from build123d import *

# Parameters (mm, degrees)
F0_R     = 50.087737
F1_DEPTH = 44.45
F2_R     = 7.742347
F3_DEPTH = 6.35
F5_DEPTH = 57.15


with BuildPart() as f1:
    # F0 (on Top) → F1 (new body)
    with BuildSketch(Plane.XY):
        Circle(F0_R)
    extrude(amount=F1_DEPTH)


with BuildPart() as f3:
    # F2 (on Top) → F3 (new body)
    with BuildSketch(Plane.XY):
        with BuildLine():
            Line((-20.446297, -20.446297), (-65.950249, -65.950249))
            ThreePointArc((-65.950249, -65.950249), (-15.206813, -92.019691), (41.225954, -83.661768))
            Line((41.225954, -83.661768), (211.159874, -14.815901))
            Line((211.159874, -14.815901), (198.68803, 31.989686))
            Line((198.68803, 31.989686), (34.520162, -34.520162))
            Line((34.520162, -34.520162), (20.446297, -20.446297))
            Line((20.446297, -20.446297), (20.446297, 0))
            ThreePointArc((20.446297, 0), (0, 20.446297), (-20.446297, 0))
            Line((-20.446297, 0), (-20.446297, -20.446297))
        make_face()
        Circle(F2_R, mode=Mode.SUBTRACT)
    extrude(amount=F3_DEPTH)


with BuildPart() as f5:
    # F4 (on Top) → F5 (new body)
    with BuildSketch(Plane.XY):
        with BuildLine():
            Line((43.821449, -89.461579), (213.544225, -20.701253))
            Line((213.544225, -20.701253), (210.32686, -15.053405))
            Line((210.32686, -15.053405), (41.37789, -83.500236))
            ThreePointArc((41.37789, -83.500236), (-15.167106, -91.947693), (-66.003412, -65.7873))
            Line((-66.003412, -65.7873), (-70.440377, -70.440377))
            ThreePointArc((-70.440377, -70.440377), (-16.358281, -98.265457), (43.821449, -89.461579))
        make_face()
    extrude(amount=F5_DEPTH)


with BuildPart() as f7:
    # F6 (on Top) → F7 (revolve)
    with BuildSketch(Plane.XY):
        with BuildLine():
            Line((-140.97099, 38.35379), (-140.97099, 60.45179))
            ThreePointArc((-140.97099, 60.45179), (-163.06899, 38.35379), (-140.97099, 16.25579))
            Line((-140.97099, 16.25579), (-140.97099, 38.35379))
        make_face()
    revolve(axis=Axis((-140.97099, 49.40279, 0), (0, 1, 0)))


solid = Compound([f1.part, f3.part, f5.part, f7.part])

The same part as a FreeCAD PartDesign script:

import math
import FreeCAD as App
import Part
import Sketcher
from FreeCAD import Vector
Q = App.Units.Quantity

doc = App.newDocument("Part")
body = doc.addObject("PartDesign::Body", "Body")

# Sketch on XY plane
sketch1 = doc.addObject("Sketcher::SketchObject", "Sketch")
body.addObject(sketch1)
sketch1.AttachmentSupport = (doc.XY_Plane, [""])
sketch1.MapMode = "FlatFace"
sketch1.addGeometry(Part.Circle(Vector(0, 0, 0), Vector(0, 0, 1), 50), False)
sketch1.addConstraint([
    Sketcher.Constraint("Coincident", 0, 3, -1, 1),
    Sketcher.Constraint("Diameter", 0, 100.175474),
])
pad1 = doc.addObject("PartDesign::Pad", "Pad")
body.addObject(pad1)
pad1.Profile = sketch1
pad1.Length = Q("1.75 in")
body2 = doc.addObject("PartDesign::Body", "Body001")

# Sketch on XY plane
sketch2 = doc.addObject("Sketcher::SketchObject", "Sketch001")
body2.addObject(sketch2)
sketch2.AttachmentSupport = (doc.getObject("XY_Plane001"), [""])
sketch2.MapMode = "FlatFace"
sketch2.addGeometry([
    Part.LineSegment(Vector(-20, -20, 0), Vector(-66, -66, 0)),  # 0
    Part.ArcOfCircle(Part.Circle(Vector(0, 0, 0), Vector(0, 0, 1), 93), math.radians(-135), math.radians(-64)),  # 1
    Part.LineSegment(Vector(41, -84, 0), Vector(211, -15, 0)),  # 2
    Part.LineSegment(Vector(211, -15, 0), Vector(199, 32, 0)),  # 3
    Part.LineSegment(Vector(199, 32, 0), Vector(35, -35, 0)),  # 4
    Part.LineSegment(Vector(35, -35, 0), Vector(20, -20, 0)),  # 5
    Part.LineSegment(Vector(20, -20, 0), Vector(20, 0, 0)),  # 6
    Part.ArcOfCircle(Part.Circle(Vector(0, 0, 0), Vector(0, 0, 1), 20), math.radians(0), math.radians(180)),  # 7
    Part.LineSegment(Vector(-20, 0, 0), Vector(-20, -20, 0)),  # 8
    Part.Circle(Vector(0, 0, 0), Vector(0, 0, 1), 8),  # 9
], False)
sketch2.addConstraint([
    Sketcher.Constraint("Coincident", 0, 2, 1, 1),
    Sketcher.Constraint("Coincident", 1, 2, 2, 1),
    Sketcher.Constraint("Coincident", 2, 2, 3, 1),
    Sketcher.Constraint("Coincident", 3, 2, 4, 1),
    Sketcher.Constraint("Coincident", 4, 2, 5, 1),
    Sketcher.Constraint("Coincident", 5, 2, 6, 1),
    Sketcher.Constraint("Tangent", 6, 2, 7, 1),
    Sketcher.Constraint("Tangent", 7, 2, 8, 1),
    Sketcher.Constraint("Coincident", 8, 2, 0, 1),
    Sketcher.Constraint("Vertical", 6),
    Sketcher.Constraint("Vertical", 8),
    Sketcher.Constraint("Coincident", 1, 3, -1, 1),
    Sketcher.Constraint("Coincident", 7, 3, -1, 1),
    Sketcher.Constraint("Coincident", 9, 3, -1, 1),
    Sketcher.Constraint("Parallel", 2, 4),
    Sketcher.Constraint("Perpendicular", 0, 5),
    Sketcher.Constraint("Horizontal", 5, 2, 8, 2),
    Sketcher.Constraint("Angle", 0, Q("-135 deg")),
    Sketcher.Constraint("Diameter", 9, 15.484694),
    Sketcher.Constraint("Radius", 1, 93.267737),
    Sketcher.Constraint("Radius", 7, 20.446297),
    Sketcher.Constraint("DistanceY", 2, 2, -1, 1, 14.815901),
    Sketcher.Constraint("Distance", 5, 19.903451),
    Sketcher.Constraint("DistanceY", 6, 1, 6, 2, 20.446297),
    Sketcher.Constraint("DistanceX", -1, 1, 3, 2, 198.68803),
    Sketcher.Constraint("DistanceY", 1, 2, 1, 3, 83.661768),
    Sketcher.Constraint("DistanceX", 1, 2, 2, 2, 169.93392),
])
pad2 = doc.addObject("PartDesign::Pad", "Pad001")
body2.addObject(pad2)
pad2.Profile = sketch2
pad2.Length = Q("0.25 in")
body3 = doc.addObject("PartDesign::Body", "Body002")

# Sketch on XY plane
sketch3 = doc.addObject("Sketcher::SketchObject", "Sketch002")
body3.addObject(sketch3)
sketch3.AttachmentSupport = (doc.getObject("XY_Plane002"), [""])
sketch3.MapMode = "FlatFace"
sketch3.addGeometry([
    Part.LineSegment(Vector(43.821449, -89.461579, 0), Vector(213.544225, -20.701253, 0)),  # 0
    Part.LineSegment(Vector(213.544225, -20.701253, 0), Vector(210.32686, -15.053405, 0)),  # 1
    Part.LineSegment(Vector(210.32686, -15.053405, 0), Vector(41.37789, -83.500236, 0)),  # 2
    Part.ArcOfCircle(Part.Circle(Vector(-0.000001, -0.000004, 0), Vector(0, 0, 1), 93.190228), math.radians(-135.093956), math.radians(-63.639642)),  # 3
    Part.LineSegment(Vector(-66.003412, -65.7873, 0), Vector(-70.440377, -70.440377, 0)),  # 4
    Part.ArcOfCircle(Part.Circle(Vector(0.000001, 0.000002, 0), Vector(0, 0, 1), 99.617738), math.radians(-135), math.radians(-63.902752)),  # 5
], False)
sketch3.addConstraint([
    Sketcher.Constraint("Coincident", 0, 2, 1, 1),
    Sketcher.Constraint("Coincident", 1, 2, 2, 1),
    Sketcher.Constraint("Coincident", 2, 2, 3, 2),
    Sketcher.Constraint("Coincident", 3, 1, 4, 1),
    Sketcher.Constraint("Coincident", 4, 2, 5, 1),
    Sketcher.Constraint("Coincident", 5, 2, 0, 1),
    Sketcher.Constraint("Coincident", 3, 3, -1, 1),
    Sketcher.Constraint("Coincident", 5, 3, -1, 1),
    Sketcher.Constraint("Radius", 3, 93.190228),
    Sketcher.Constraint("Radius", 5, 99.617738),
    Sketcher.Constraint("DistanceY", 3, 1, -1, 1, 65.7873),
    Sketcher.Constraint("DistanceY", 1, 2, 3, 3, 15.053401),
    Sketcher.Constraint("DistanceX", 3, 1, 2, 2, 107.381302),
    Sketcher.Constraint("Distance", 0, 183.122372),
    Sketcher.Constraint("Distance", 1, 6.499971),
    Sketcher.Constraint("DistanceX", -1, 1, 1, 2, 210.32686),
    Sketcher.Constraint("DistanceX", -1, 1, 5, 2, 43.821449),
    Sketcher.Constraint("DistanceY", 4, 2, 5, 3, 70.440379),
])
pad3 = doc.addObject("PartDesign::Pad", "Pad002")
body3.addObject(pad3)
pad3.Profile = sketch3
pad3.Length = Q("2.25 in")
body4 = doc.addObject("PartDesign::Body", "Body003")

# Sketch on XY plane
sketch4 = doc.addObject("Sketcher::SketchObject", "Sketch003")
body4.addObject(sketch4)
sketch4.AttachmentSupport = (doc.getObject("XY_Plane003"), [""])
sketch4.MapMode = "FlatFace"
sketch4.addGeometry([
    Part.ArcOfCircle(Part.Circle(Vector(-141, 38, 0), Vector(0, 0, 1), 22), math.radians(90), math.radians(270)),
    Part.LineSegment(Vector(-141, 16, 0), Vector(-141, 60, 0)),
], False)
sketch4.addGeometry(Part.LineSegment(Vector(-141, 16, 0), Vector(-141, 60, 0)), True)  # axis
sketch4.addConstraint([
    Sketcher.Constraint("Coincident", 0, 1, 1, 2),
    Sketcher.Constraint("Coincident", 1, 1, 0, 2),
    Sketcher.Constraint("Vertical", 1),
    Sketcher.Constraint("Vertical", 2),
    Sketcher.Constraint("Coincident", 2, 1, 1, 1),
    Sketcher.Constraint("Equal", 1, 2),
    Sketcher.Constraint("Radius", 0, Q("0.87 in")),
    Sketcher.Constraint("DistanceX", 0, 3, -1, 1, 140.97099),
    Sketcher.Constraint("DistanceY", -1, 1, 0, 3, 38.35379),
    Sketcher.Constraint("DistanceX", 0, 1, -1, 1, 140.97099),
])
revolution = doc.addObject("PartDesign::Revolution", "Revolution")
body4.addObject(revolution)
revolution.Profile = sketch4
revolution.ReferenceAxis = (sketch4, ["Axis0"])
revolution.Angle = 360

doc.recompute()
